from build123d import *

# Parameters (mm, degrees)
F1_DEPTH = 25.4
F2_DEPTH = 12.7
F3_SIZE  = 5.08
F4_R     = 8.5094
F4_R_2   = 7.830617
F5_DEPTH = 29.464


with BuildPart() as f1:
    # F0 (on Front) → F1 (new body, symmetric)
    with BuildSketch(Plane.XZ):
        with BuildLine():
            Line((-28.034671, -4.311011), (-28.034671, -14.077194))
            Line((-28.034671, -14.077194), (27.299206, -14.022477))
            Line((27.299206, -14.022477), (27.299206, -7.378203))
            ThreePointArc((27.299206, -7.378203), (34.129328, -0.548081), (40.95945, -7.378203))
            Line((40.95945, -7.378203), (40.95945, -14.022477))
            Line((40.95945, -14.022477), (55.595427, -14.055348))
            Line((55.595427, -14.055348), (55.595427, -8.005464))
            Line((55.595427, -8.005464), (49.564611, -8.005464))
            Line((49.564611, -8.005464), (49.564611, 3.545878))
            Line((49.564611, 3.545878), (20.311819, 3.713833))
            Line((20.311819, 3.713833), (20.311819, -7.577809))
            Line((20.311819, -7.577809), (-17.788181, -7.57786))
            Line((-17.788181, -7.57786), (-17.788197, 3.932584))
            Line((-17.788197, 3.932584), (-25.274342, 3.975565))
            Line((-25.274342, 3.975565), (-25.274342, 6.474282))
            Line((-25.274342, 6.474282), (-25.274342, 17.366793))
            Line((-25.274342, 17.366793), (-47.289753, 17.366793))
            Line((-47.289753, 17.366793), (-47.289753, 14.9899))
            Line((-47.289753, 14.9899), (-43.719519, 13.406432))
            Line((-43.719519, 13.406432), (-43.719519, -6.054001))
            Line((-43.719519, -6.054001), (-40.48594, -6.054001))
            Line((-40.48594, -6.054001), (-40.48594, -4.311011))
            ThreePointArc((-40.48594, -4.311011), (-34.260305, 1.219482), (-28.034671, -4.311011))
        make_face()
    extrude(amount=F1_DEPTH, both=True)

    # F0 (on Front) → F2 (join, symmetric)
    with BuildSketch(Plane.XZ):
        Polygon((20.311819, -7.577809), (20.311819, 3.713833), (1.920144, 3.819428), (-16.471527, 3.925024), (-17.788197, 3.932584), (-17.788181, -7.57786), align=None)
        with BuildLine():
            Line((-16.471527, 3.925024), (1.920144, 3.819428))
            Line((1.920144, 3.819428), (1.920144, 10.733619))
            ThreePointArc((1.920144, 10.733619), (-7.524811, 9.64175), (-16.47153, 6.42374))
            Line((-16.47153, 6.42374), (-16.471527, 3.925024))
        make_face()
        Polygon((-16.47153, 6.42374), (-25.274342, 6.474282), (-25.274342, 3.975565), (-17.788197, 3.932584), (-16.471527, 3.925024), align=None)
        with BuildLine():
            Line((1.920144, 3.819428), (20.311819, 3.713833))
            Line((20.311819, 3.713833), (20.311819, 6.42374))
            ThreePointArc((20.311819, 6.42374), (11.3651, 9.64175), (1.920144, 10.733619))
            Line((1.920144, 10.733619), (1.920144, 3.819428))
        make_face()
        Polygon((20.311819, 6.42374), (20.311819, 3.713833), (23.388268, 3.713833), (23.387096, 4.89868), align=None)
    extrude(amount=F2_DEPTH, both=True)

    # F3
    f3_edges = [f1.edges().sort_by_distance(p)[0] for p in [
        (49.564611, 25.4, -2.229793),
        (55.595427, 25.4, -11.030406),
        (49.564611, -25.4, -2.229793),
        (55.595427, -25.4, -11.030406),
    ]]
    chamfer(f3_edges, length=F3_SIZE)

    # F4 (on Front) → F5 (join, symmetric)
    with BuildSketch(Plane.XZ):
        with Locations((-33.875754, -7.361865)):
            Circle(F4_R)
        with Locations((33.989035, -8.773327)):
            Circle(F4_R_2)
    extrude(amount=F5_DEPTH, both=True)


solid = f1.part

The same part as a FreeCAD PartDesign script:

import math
import FreeCAD as App
import Part
import Sketcher

V = App.Vector
Q = App.Units.Quantity


def edges_at(feature, points):
    """Names of the edges that pass closest to the given points."""
    edges = feature.Shape.Edges
    near = lambda p: min(range(len(edges)), key=lambda i: edges[i].distToShape(Part.Vertex(*p))[0])
    return sorted({f"Edge{near(p) + 1}" for p in points})

doc = App.newDocument("Part")
params = doc.addObject("Spreadsheet::Sheet", "Params")
for row, (alias, value) in enumerate([
    ("sketch1_length", "1.5 in"),
    ("pad1_length", "2 in"),
    ("sketch2_length", "1.5 in"),
    ("pad2_length", "1 in"),
    ("chamfer_size", "0.2 in"),
    ("pad3_length", "2.32 in"),
], start=1):
    params.set(f"A{row}", alias)
    params.set(f"B{row}", "=" + value)
    params.setAlias(f"B{row}", alias)

body = doc.addObject("PartDesign::Body", "Body")

sketch1 = doc.addObject("Sketcher::SketchObject", "Sketch")
body.addObject(sketch1)
sketch1.AttachmentSupport = (doc.XZ_Plane, [""])
sketch1.MapMode = "FlatFace"
sketch1.addGeometry(Part.LineSegment(V(-28, -4.3, 0), V(-28, -14.1, 0)), False)
sketch1.addGeometry(Part.LineSegment(V(-28, -14.1, 0), V(27.3, -14, 0)), False)
sketch1.addGeometry(Part.LineSegment(V(27.3, -14, 0), V(27.3, -7.4, 0)), False)
sketch1.addGeometry(Part.ArcOfCircle(Part.Circle(V(34.1, -7.4, 0), V(0, 0, 1), 6.8), math.radians(0), math.radians(180)), False)
sketch1.addGeometry(Part.LineSegment(V(41, -7.4, 0), V(41, -14, 0)), False)
sketch1.addGeometry(Part.LineSegment(V(41, -14, 0), V(55.6, -14.1, 0)), False)
sketch1.addGeometry(Part.LineSegment(V(55.6, -14.1, 0), V(55.6, -8, 0)), False)
sketch1.addGeometry(Part.LineSegment(V(55.6, -8, 0), V(49.6, -8, 0)), False)
sketch1.addGeometry(Part.LineSegment(V(49.6, -8, 0), V(49.6, 3.5, 0)), False)
sketch1.addGeometry(Part.LineSegment(V(49.6, 3.5, 0), V(20.3, 3.7, 0)), False)
sketch1.addGeometry(Part.LineSegment(V(20.3, 3.7, 0), V(20.3, -7.6, 0)), False)
sketch1.addGeometry(Part.LineSegment(V(20.3, -7.6, 0), V(-17.8, -7.6, 0)), False)
sketch1.addGeometry(Part.LineSegment(V(-17.8, -7.6, 0), V(-17.8, 3.9, 0)), False)
sketch1.addGeometry(Part.LineSegment(V(-17.8, 3.9, 0), V(-25.3, 4, 0)), False)
sketch1.addGeometry(Part.LineSegment(V(-25.3, 4, 0), V(-25.3, 17.4, 0)), False)
sketch1.addGeometry(Part.LineSegment(V(-25.3, 17.4, 0), V(-47.3, 17.4, 0)), False)
sketch1.addGeometry(Part.LineSegment(V(-47.3, 17.4, 0), V(-47.3, 15, 0)), False)
sketch1.addGeometry(Part.LineSegment(V(-47.3, 15, 0), V(-43.7, 13.4, 0)), False)
sketch1.addGeometry(Part.LineSegment(V(-43.7, 13.4, 0), V(-43.7, -6.1, 0)), False)
sketch1.addGeometry(Part.LineSegment(V(-43.7, -6.1, 0), V(-40.5, -6.1, 0)), False)
sketch1.addGeometry(Part.LineSegment(V(-40.5, -6.1, 0), V(-40.5, -4.3, 0)), False)
sketch1.addGeometry(Part.ArcOfCircle(Part.Circle(V(-34.3, -5, 0), V(0, 0, 1), 6.3), math.radians(7), math.radians(173)), False)
sketch1.addConstraint(Sketcher.Constraint("Coincident", 0, 2, 1, 1))
sketch1.addConstraint(Sketcher.Constraint("Coincident", 1, 2, 2, 1))
sketch1.addConstraint(Sketcher.Constraint("Tangent", 2, 2, 3, 2))
sketch1.addConstraint(Sketcher.Constraint("Tangent", 3, 1, 4, 1))
sketch1.addConstraint(Sketcher.Constraint("Coincident", 4, 2, 5, 1))
sketch1.addConstraint(Sketcher.Constraint("Coincident", 5, 2, 6, 1))
sketch1.addConstraint(Sketcher.Constraint("Coincident", 6, 2, 7, 1))
sketch1.addConstraint(Sketcher.Constraint("Coincident", 7, 2, 8, 1))
sketch1.addConstraint(Sketcher.Constraint("Coincident", 8, 2, 9, 1))
sketch1.addConstraint(Sketcher.Constraint("Coincident", 9, 2, 10, 1))
sketch1.addConstraint(Sketcher.Constraint("Coincident", 10, 2, 11, 1))
sketch1.addConstraint(Sketcher.Constraint("Coincident", 11, 2, 12, 1))
sketch1.addConstraint(Sketcher.Constraint("Coincident", 12, 2, 13, 1))
sketch1.addConstraint(Sketcher.Constraint("Coincident", 13, 2, 14, 1))
sketch1.addConstraint(Sketcher.Constraint("Coincident", 14, 2, 15, 1))
sketch1.addConstraint(Sketcher.Constraint("Coincident", 15, 2, 16, 1))
sketch1.addConstraint(Sketcher.Constraint("Coincident", 16, 2, 17, 1))
sketch1.addConstraint(Sketcher.Constraint("Coincident", 17, 2, 18, 1))
sketch1.addConstraint(Sketcher.Constraint("Coincident", 18, 2, 19, 1))
sketch1.addConstraint(Sketcher.Constraint("Coincident", 19, 2, 20, 1))
sketch1.addConstraint(Sketcher.Constraint("Coincident", 20, 2, 21, 2))
sketch1.addConstraint(Sketcher.Constraint("Coincident", 21, 1, 0, 1))
sketch1.addConstraint(Sketcher.Constraint("Vertical", 0))
sketch1.addConstraint(Sketcher.Constraint("Vertical", 2))
sketch1.addConstraint(Sketcher.Constraint("Vertical", 4))
sketch1.addConstraint(Sketcher.Constraint("Vertical", 6))
sketch1.addConstraint(Sketcher.Constraint("Horizontal", 7))
sketch1.addConstraint(Sketcher.Constraint("Vertical", 8))
sketch1.addConstraint(Sketcher.Constraint("Vertical", 10))
sketch1.addConstraint(Sketcher.Constraint("Vertical", 14))
sketch1.addConstraint(Sketcher.Constraint("Horizontal", 15))
sketch1.addConstraint(Sketcher.Constraint("Vertical", 16))
sketch1.addConstraint(Sketcher.Constraint("Vertical", 18))
sketch1.addConstraint(Sketcher.Constraint("Horizontal", 19))
sketch1.addConstraint(Sketcher.Constraint("Vertical", 20))
sketch1.addConstraint(Sketcher.Constraint("Perpendicular", 11, 12))
sketch1.addConstraint(Sketcher.Constraint("Parallel", 9, 13))
sketch1.addConstraint(Sketcher.Constraint("Horizontal", 1, 2, 4, 2))
sketch1.addConstraint(Sketcher.Constraint("Horizontal", 20, 2, 21, 1))
sketch1.addConstraint(Sketcher.Constraint("Distance", 11, Q("1.5 in")))
sketch1.addConstraint(Sketcher.Constraint("Radius", 21, 6.269322))
sketch1.addConstraint(Sketcher.Constraint("Distance", 1, Q("2.1785002 in")))
sketch1.addConstraint(Sketcher.Constraint("Radius", 3, 6.830122))
sketch1.addConstraint(Sketcher.Constraint("DistanceY", 18, 2, 16, 2, Q("0.8285 in")))
sketch1.addConstraint(Sketcher.Constraint("DistanceX", 15, 2, 15, 1, 22.015411))
sketch1.addConstraint(Sketcher.Constraint("DistanceX", 19, 1, 19, 2, 3.233579))
sketch1.addConstraint(Sketcher.Constraint("DistanceY", 14, 1, 14, 2, 13.391228))
sketch1.addConstraint(Sketcher.Constraint("DistanceY", 20, 1, 20, 2, 1.74299))
sketch1.addConstraint(Sketcher.Constraint("DistanceY", -1, 1, 16, 2, 14.9899))
sketch1.addConstraint(Sketcher.Constraint("DistanceX", 3, 3, 5, 2, 21.466099))
sketch1.addConstraint(Sketcher.Constraint("Distance", 13, 7.486268))
sketch1.addConstraint(Sketcher.Constraint("Distance", 17, 3.905629))
sketch1.addConstraint(Sketcher.Constraint("DistanceX", 7, 2, 7, 1, 6.030816))
sketch1.addConstraint(Sketcher.Constraint("DistanceY", 0, 2, 0, 1, 9.766183))
sketch1.addConstraint(Sketcher.Constraint("DistanceY", 2, 1, 2, 2, 6.644274))
sketch1.addConstraint(Sketcher.Constraint("DistanceY", 6, 1, 6, 2, 6.049884))
sketch1.addConstraint(Sketcher.Constraint("DistanceY", 8, 1, 8, 2, 11.551342))
sketch1.addConstraint(Sketcher.Constraint("DistanceY", 10, 2, 10, 1, 11.291642))
sketch1.addConstraint(Sketcher.Constraint("DistanceY", 16, 2, 16, 1, 2.376893))
sketch1.addConstraint(Sketcher.Constraint("DistanceY", 18, 2, 18, 1, 19.460433))
sketch1.addConstraint(Sketcher.Constraint("DistanceY", 21, 3, -1, 1, 5.04984))
sketch1.addConstraint(Sketcher.Constraint("DistanceX", 0, 2, -1, 1, 28.034671))
sketch1.addConstraint(Sketcher.Constraint("DistanceY", -1, 1, 8, 2, 3.545878))
sketch1.addConstraint(Sketcher.Constraint("DistanceX", -1, 1, 9, 2, 20.311819))
sketch1.addConstraint(Sketcher.Constraint("DistanceY", 10, 2, -1, 1, 7.577809))
sketch1.addConstraint(Sketcher.Constraint("DistanceY", 0, 2, 3, 3, 6.698991))
sketch1.setExpression("Constraints[39]", "Params.sketch1_length")
pad1 = doc.addObject("PartDesign::Pad", "Pad")
body.addObject(pad1)
pad1.Profile = sketch1
pad1.setExpression("Length", "Params.pad1_length")
pad1.Midplane = True

sketch2 = doc.addObject("Sketcher::SketchObject", "Sketch001")
body.addObject(sketch2)
sketch2.AttachmentSupport = (doc.XZ_Plane, [""])
sketch2.MapMode = "FlatFace"
sketch2.addGeometry(Part.LineSegment(V(-17.8, -7.6, 0), V(20.3, -7.6, 0)), False)
sketch2.addGeometry(Part.LineSegment(V(20.3, -7.6, 0), V(20.3, 3.7, 0)), False)
sketch2.addGeometry(Part.LineSegment(V(20.3, 3.7, 0), V(23.4, 3.7, 0)), False)
sketch2.addGeometry(Part.LineSegment(V(23.4, 3.7, 0), V(23.4, 4.9, 0)), False)
sketch2.addGeometry(Part.LineSegment(V(23.4, 4.9, 0), V(20.3, 6.4, 0)), False)
sketch2.addGeometry(Part.ArcOfCircle(Part.Circle(V(1.9, -30.7, 0), V(0, 0, 1), 41.4), math.radians(64), math.radians(90)), False)
sketch2.addGeometry(Part.ArcOfCircle(Part.Circle(V(1.9, -30.7, 0), V(0, 0, 1), 41.4), math.radians(90), math.radians(116)), False)
sketch2.addGeometry(Part.LineSegment(V(-16.5, 6.4, 0), V(-25.3, 6.5, 0)), False)
sketch2.addGeometry(Part.LineSegment(V(-25.3, 6.5, 0), V(-25.3, 4, 0)), False)
sketch2.addGeometry(Part.LineSegment(V(-25.3, 4, 0), V(-17.8, 3.9, 0)), False)
sketch2.addGeometry(Part.LineSegment(V(-17.8, 3.9, 0), V(-17.8, -7.6, 0)), False)
sketch2.addConstraint(Sketcher.Constraint("Coincident", 0, 2, 1, 1))
sketch2.addConstraint(Sketcher.Constraint("Coincident", 1, 2, 2, 1))
sketch2.addConstraint(Sketcher.Constraint("Coincident", 2, 2, 3, 1))
sketch2.addConstraint(Sketcher.Constraint("Coincident", 3, 2, 4, 1))
sketch2.addConstraint(Sketcher.Constraint("Tangent", 4, 2, 5, 1))
sketch2.addConstraint(Sketcher.Constraint("Tangent", 5, 2, 6, 1))
sketch2.addConstraint(Sketcher.Constraint("Coincident", 6, 2, 7, 1))
sketch2.addConstraint(Sketcher.Constraint("Coincident", 7, 2, 8, 1))
sketch2.addConstraint(Sketcher.Constraint("Coincident", 8, 2, 9, 1))
sketch2.addConstraint(Sketcher.Constraint("Coincident", 9, 2, 10, 1))
sketch2.addConstraint(Sketcher.Constraint("Coincident", 10, 2, 0, 1))
sketch2.addConstraint(Sketcher.Constraint("Vertical", 1))
sketch2.addConstraint(Sketcher.Constraint("Horizontal", 2))
sketch2.addConstraint(Sketcher.Constraint("Vertical", 8))
sketch2.addConstraint(Sketcher.Constraint("Equal", 5, 6))
sketch2.addConstraint(Sketcher.Constraint("Parallel", 7, 9))
sketch2.addConstraint(Sketcher.Constraint("Perpendicular", 0, 10))
sketch2.addConstraint(Sketcher.Constraint("Horizontal", 4, 2, 6, 2))
sketch2.addConstraint(Sketcher.Constraint("Vertical", 1, 2, 4, 2))
sketch2.addConstraint(Sketcher.Constraint("Vertical", 6, 3, 5, 2))
sketch2.addConstraint(Sketcher.Constraint("Distance", 0, Q("1.5 in")))
sketch2.addConstraint(Sketcher.Constraint("Radius", 5, 41.396602))
sketch2.addConstraint(Sketcher.Constraint("DistanceX", 2, 1, 2, 2, 3.076449))
sketch2.addConstraint(Sketcher.Constraint("DistanceY", 10, 2, 6, 2, 14.0016))
sketch2.addConstraint(Sketcher.Constraint("Distance", 9, 7.486268))
sketch2.addConstraint(Sketcher.Constraint("DistanceY", 1, 1, 1, 2, 11.291642))
sketch2.addConstraint(Sketcher.Constraint("DistanceY", 8, 2, 8, 1, 2.498717))
sketch2.addConstraint(Sketcher.Constraint("DistanceX", -1, 1, 0, 2, 20.311819))
sketch2.addConstraint(Sketcher.Constraint("DistanceY", 0, 2, -1, 1, 7.577809))
sketch2.addConstraint(Sketcher.Constraint("DistanceY", -1, 1, 3, 2, 4.89868))
sketch2.addConstraint(Sketcher.Constraint("DistanceY", -1, 1, 4, 2, 6.42374))
sketch2.addConstraint(Sketcher.Constraint("DistanceY", -1, 1, 5, 2, 10.733619))
sketch2.addConstraint(Sketcher.Constraint("DistanceY", -1, 1, 7, 2, 6.474282))
sketch2.setExpression("Constraints[20]", "Params.sketch2_length")
pad2 = doc.addObject("PartDesign::Pad", "Pad001")
body.addObject(pad2)
pad2.Profile = sketch2
pad2.setExpression("Length", "Params.pad2_length")
pad2.Midplane = True
doc.recompute()

chamfer = doc.addObject("PartDesign::Chamfer", "Chamfer")
body.addObject(chamfer)
chamfer.Base = (pad2, edges_at(pad2, [
    (49.565, 25.4, -2.23),
    (55.595, 25.4, -11.03),
    (49.565, -25.4, -2.23),
    (55.595, -25.4, -11.03),
]))
chamfer.setExpression("Size", "Params.chamfer_size")

sketch3 = doc.addObject("Sketcher::SketchObject", "Sketch002")
body.addObject(sketch3)
sketch3.AttachmentSupport = (doc.XZ_Plane, [""])
sketch3.MapMode = "FlatFace"
sketch3.addGeometry(Part.Circle(V(-34, -7, 0), V(0, 0, 1), 9), False)
sketch3.addGeometry(Part.Circle(V(34, -9, 0), V(0, 0, 1), 8), False)
sketch3.addConstraint(Sketcher.Constraint("Diameter", 0, 17.0188))
sketch3.addConstraint(Sketcher.Constraint("Diameter", 1, 15.661234))
sketch3.addConstraint(Sketcher.Constraint("DistanceX", 0, 3, 1, 3, 67.864789))
sketch3.addConstraint(Sketcher.Constraint("DistanceX", 0, 3, -1, 1, 33.875754))
sketch3.addConstraint(Sketcher.Constraint("DistanceY", 0, 3, -1, 1, 7.361865))
sketch3.addConstraint(Sketcher.Constraint("DistanceY", 1, 3, -1, 1, 8.773327))
pad3 = doc.addObject("PartDesign::Pad", "Pad002")
body.addObject(pad3)
pad3.Profile = sketch3
pad3.setExpression("Length", "Params.pad3_length")
pad3.Midplane = True

doc.recompute()
